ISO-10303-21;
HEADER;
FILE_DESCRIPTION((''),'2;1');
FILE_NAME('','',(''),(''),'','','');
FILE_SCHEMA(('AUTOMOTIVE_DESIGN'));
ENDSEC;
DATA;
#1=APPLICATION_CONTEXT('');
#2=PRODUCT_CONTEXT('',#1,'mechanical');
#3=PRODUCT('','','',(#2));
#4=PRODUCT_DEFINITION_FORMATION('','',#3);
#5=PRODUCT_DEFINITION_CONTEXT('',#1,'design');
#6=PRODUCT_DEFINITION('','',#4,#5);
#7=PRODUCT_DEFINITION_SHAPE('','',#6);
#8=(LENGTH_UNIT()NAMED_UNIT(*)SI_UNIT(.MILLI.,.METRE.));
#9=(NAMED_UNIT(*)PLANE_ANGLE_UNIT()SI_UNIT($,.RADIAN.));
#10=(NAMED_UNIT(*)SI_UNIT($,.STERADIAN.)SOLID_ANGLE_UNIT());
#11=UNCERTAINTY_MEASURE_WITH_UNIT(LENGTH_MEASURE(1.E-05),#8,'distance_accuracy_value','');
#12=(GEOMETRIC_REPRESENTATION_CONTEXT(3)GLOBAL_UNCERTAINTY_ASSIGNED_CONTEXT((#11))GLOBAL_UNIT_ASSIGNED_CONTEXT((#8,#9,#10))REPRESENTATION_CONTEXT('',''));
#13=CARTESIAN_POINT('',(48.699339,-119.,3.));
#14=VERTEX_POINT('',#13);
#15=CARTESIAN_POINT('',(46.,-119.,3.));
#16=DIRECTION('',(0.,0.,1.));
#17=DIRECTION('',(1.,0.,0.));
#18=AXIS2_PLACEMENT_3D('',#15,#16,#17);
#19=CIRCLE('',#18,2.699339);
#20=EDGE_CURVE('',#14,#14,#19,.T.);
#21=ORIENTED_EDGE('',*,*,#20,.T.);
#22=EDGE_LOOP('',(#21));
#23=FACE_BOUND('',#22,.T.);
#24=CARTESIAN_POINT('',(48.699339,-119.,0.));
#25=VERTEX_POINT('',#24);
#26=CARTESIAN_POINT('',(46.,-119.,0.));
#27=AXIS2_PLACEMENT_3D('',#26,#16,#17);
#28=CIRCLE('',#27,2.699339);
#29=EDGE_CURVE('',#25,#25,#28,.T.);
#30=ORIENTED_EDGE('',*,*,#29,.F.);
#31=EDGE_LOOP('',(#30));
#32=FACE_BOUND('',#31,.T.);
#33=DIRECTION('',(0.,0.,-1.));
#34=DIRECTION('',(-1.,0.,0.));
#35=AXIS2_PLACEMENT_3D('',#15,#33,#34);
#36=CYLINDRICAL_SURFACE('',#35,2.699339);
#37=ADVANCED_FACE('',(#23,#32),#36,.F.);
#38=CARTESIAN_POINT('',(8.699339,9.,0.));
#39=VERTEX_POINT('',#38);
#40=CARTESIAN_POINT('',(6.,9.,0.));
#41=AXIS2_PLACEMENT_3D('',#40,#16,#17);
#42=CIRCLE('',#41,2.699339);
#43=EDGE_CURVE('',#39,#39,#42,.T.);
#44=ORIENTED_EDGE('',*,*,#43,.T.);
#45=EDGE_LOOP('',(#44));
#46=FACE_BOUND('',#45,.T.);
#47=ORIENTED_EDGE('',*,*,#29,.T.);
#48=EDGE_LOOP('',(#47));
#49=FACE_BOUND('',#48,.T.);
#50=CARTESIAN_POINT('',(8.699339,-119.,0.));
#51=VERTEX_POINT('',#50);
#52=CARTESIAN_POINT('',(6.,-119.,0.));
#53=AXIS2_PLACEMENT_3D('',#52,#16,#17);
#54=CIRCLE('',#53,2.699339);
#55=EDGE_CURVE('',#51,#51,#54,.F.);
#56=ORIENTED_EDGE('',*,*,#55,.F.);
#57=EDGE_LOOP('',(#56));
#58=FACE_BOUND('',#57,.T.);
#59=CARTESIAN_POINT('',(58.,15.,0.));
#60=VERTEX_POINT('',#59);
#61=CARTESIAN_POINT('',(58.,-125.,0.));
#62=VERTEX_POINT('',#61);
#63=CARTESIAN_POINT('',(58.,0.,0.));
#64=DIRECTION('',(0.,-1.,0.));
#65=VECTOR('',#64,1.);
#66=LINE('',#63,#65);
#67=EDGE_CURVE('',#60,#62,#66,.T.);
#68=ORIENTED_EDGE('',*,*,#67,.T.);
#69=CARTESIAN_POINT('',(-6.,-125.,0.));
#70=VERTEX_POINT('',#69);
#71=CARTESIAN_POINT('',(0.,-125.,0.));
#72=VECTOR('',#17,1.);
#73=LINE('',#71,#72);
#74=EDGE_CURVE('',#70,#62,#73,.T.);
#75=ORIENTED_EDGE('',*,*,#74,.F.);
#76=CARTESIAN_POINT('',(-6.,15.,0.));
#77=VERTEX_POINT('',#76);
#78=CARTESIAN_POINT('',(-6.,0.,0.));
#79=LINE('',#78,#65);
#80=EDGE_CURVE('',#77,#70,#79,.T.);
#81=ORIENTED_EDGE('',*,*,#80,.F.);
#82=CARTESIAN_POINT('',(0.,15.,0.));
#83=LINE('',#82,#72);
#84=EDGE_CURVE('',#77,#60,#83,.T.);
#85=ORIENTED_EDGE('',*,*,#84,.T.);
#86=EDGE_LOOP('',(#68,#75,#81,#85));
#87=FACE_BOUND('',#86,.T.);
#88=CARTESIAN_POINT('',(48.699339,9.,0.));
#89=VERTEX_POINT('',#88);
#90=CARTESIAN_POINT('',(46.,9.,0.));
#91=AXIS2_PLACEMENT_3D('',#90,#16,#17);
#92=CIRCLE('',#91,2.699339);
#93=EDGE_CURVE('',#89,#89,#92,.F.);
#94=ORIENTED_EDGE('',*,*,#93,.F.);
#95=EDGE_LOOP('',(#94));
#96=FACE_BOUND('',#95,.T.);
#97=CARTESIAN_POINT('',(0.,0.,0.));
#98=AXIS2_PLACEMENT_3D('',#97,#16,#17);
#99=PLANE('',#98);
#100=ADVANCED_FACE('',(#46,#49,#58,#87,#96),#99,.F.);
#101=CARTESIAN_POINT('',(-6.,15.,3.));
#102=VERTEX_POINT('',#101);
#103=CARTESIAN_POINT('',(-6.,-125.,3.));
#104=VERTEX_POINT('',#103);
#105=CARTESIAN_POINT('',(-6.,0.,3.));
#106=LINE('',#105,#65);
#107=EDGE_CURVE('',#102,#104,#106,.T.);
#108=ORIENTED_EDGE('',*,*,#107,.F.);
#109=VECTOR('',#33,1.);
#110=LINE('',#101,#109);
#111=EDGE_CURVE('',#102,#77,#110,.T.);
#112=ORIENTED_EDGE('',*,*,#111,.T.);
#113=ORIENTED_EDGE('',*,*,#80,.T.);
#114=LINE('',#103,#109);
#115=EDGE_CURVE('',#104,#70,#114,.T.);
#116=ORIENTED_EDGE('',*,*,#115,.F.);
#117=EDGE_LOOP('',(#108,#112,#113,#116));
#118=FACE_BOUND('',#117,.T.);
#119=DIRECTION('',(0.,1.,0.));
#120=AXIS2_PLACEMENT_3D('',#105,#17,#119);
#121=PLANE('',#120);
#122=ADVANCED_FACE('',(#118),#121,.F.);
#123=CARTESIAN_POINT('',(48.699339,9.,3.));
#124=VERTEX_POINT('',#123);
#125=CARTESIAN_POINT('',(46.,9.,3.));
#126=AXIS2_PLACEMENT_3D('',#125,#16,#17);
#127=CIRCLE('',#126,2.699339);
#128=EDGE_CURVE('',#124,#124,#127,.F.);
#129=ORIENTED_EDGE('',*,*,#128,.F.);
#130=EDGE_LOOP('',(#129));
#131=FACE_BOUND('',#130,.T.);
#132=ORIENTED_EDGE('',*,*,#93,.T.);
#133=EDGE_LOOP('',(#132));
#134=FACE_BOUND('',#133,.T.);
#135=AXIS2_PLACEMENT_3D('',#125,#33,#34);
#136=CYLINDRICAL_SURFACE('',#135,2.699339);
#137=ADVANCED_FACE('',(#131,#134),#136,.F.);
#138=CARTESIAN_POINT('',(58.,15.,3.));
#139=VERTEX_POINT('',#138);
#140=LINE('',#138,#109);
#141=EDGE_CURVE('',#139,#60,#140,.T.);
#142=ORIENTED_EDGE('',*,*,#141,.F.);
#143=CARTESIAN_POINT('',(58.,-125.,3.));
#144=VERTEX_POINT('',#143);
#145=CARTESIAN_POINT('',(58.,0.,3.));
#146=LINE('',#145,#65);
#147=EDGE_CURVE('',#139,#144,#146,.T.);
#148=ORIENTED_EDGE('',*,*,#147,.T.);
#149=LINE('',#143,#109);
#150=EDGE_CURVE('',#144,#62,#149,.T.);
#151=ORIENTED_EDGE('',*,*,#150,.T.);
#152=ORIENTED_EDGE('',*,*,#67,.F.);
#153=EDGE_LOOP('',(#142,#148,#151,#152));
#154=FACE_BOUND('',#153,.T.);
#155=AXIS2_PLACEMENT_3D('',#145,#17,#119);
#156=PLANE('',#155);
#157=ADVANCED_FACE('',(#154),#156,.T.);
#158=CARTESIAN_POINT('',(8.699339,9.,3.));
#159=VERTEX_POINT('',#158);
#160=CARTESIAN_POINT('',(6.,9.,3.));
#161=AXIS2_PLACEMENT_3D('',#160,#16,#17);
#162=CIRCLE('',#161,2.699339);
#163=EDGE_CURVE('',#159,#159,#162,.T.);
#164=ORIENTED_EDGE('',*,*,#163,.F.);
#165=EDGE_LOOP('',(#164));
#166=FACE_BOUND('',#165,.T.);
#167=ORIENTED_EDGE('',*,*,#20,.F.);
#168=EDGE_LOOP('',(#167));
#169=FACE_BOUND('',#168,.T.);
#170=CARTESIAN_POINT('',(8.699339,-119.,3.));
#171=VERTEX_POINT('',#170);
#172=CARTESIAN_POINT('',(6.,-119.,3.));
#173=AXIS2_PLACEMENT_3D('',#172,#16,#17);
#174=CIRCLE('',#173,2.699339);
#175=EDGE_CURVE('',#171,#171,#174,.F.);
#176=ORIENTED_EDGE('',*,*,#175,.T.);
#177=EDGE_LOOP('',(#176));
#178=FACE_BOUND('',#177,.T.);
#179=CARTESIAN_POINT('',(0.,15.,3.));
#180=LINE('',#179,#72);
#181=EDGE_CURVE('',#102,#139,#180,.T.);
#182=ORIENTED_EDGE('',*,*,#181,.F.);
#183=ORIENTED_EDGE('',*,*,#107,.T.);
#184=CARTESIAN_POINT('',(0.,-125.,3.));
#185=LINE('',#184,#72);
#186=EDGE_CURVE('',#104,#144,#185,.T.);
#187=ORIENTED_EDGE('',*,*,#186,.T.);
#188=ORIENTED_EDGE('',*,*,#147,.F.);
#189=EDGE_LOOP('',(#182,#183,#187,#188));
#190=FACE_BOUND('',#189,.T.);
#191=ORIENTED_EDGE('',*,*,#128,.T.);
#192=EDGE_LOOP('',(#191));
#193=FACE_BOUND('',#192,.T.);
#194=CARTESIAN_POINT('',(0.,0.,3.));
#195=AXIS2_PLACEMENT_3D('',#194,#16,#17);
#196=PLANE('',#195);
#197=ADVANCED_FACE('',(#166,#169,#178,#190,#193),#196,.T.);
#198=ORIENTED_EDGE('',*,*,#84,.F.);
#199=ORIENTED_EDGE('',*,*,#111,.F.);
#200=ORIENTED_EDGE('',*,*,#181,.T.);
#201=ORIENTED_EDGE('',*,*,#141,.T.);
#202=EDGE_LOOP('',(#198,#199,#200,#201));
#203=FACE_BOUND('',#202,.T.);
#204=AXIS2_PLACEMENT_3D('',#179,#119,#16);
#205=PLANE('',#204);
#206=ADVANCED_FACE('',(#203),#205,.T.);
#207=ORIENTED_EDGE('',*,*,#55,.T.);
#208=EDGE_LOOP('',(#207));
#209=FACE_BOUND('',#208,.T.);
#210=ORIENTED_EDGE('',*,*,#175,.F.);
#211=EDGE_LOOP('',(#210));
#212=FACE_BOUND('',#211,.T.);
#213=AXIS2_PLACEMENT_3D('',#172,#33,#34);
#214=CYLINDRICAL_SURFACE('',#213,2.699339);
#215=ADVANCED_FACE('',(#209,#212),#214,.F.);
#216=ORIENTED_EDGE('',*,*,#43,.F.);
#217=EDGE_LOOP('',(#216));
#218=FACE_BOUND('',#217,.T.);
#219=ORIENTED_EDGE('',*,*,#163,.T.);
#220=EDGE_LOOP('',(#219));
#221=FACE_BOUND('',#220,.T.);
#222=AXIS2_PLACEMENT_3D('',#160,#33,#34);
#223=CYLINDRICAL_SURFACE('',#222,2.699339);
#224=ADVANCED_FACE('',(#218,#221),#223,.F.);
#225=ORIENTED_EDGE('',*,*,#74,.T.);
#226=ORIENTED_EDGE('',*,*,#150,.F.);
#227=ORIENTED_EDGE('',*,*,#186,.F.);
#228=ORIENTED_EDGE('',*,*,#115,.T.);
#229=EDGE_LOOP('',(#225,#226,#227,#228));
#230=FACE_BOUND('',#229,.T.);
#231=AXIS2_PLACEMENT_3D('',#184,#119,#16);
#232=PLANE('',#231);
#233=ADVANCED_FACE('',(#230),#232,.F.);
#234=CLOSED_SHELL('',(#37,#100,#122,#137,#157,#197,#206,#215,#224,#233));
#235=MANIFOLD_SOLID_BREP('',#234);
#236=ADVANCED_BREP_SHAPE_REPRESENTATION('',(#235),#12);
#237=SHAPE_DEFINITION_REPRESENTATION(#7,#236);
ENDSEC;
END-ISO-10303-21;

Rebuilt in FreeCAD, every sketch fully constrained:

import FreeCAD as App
import Part
import Sketcher
from FreeCAD import Vector

doc = App.newDocument("Part")
body = doc.addObject("PartDesign::Body", "Body")

# Sketch on XY plane
sketch1 = doc.addObject("Sketcher::SketchObject", "Sketch")
body.addObject(sketch1)
sketch1.AttachmentSupport = (doc.XY_Plane, [""])
sketch1.MapMode = "FlatFace"
sketch1.addGeometry(Part.LineSegment(Vector(-6, 15, 0), Vector(-6, -125, 0)), False)
sketch1.addGeometry(Part.LineSegment(Vector(-6, -125, 0), Vector(58, -125, 0)), False)
sketch1.addGeometry(Part.LineSegment(Vector(58, -125, 0), Vector(58, 15, 0)), False)
sketch1.addGeometry(Part.LineSegment(Vector(58, 15, 0), Vector(-6, 15, 0)), False)
sketch1.addGeometry(Part.Circle(Vector(6, -119, 0), Vector(0, 0, 1), 2.7), False)
sketch1.addGeometry(Part.Circle(Vector(46, -119, 0), Vector(0, 0, 1), 2.7), False)
sketch1.addGeometry(Part.Circle(Vector(6, 9, 0), Vector(0, 0, 1), 2.7), False)
sketch1.addGeometry(Part.Circle(Vector(46, 9, 0), Vector(0, 0, 1), 2.7), False)
sketch1.addConstraint(Sketcher.Constraint("Coincident", 0, 2, 1, 1))
sketch1.addConstraint(Sketcher.Constraint("Coincident", 1, 2, 2, 1))
sketch1.addConstraint(Sketcher.Constraint("Coincident", 2, 2, 3, 1))
sketch1.addConstraint(Sketcher.Constraint("Coincident", 3, 2, 0, 1))
sketch1.addConstraint(Sketcher.Constraint("Vertical", 0))
sketch1.addConstraint(Sketcher.Constraint("Horizontal", 1))
sketch1.addConstraint(Sketcher.Constraint("Vertical", 2))
sketch1.addConstraint(Sketcher.Constraint("Horizontal", 3))
sketch1.addConstraint(Sketcher.Constraint("Equal", 4, 5))
sketch1.addConstraint(Sketcher.Constraint("Equal", 5, 6))
sketch1.addConstraint(Sketcher.Constraint("Equal", 6, 7))
sketch1.addConstraint(Sketcher.Constraint("Horizontal", 4, 3, 5, 3))
sketch1.addConstraint(Sketcher.Constraint("Horizontal", 6, 3, 7, 3))
sketch1.addConstraint(Sketcher.Constraint("Vertical", 4, 3, 6, 3))
sketch1.addConstraint(Sketcher.Constraint("Vertical", 5, 3, 7, 3))
sketch1.addConstraint(Sketcher.Constraint("DistanceX", 1, 1, 1, 2, 64.0))
sketch1.addConstraint(Sketcher.Constraint("DistanceY", 0, 2, 0, 1, 140.0))
sketch1.addConstraint(Sketcher.Constraint("DistanceX", -1, 1, 4, 3, 6.0))
sketch1.addConstraint(Sketcher.Constraint("DistanceY", 4, 3, -1, 1, 119.0))
sketch1.addConstraint(Sketcher.Constraint("DistanceX", -1, 1, 5, 3, 46.0))
sketch1.addConstraint(Sketcher.Constraint("DistanceY", -1, 1, 6, 3, 9.0))
sketch1.addConstraint(Sketcher.Constraint("DistanceX", 0, 2, -1, 1, 6.0))
sketch1.addConstraint(Sketcher.Constraint("DistanceY", 0, 2, -1, 1, 125.0))
sketch1.addConstraint(Sketcher.Constraint("Diameter", 4, 5.398678))
pad1 = doc.addObject("PartDesign::Pad", "Pad")
body.addObject(pad1)
pad1.Profile = sketch1
pad1.Length = 3

doc.recompute()
